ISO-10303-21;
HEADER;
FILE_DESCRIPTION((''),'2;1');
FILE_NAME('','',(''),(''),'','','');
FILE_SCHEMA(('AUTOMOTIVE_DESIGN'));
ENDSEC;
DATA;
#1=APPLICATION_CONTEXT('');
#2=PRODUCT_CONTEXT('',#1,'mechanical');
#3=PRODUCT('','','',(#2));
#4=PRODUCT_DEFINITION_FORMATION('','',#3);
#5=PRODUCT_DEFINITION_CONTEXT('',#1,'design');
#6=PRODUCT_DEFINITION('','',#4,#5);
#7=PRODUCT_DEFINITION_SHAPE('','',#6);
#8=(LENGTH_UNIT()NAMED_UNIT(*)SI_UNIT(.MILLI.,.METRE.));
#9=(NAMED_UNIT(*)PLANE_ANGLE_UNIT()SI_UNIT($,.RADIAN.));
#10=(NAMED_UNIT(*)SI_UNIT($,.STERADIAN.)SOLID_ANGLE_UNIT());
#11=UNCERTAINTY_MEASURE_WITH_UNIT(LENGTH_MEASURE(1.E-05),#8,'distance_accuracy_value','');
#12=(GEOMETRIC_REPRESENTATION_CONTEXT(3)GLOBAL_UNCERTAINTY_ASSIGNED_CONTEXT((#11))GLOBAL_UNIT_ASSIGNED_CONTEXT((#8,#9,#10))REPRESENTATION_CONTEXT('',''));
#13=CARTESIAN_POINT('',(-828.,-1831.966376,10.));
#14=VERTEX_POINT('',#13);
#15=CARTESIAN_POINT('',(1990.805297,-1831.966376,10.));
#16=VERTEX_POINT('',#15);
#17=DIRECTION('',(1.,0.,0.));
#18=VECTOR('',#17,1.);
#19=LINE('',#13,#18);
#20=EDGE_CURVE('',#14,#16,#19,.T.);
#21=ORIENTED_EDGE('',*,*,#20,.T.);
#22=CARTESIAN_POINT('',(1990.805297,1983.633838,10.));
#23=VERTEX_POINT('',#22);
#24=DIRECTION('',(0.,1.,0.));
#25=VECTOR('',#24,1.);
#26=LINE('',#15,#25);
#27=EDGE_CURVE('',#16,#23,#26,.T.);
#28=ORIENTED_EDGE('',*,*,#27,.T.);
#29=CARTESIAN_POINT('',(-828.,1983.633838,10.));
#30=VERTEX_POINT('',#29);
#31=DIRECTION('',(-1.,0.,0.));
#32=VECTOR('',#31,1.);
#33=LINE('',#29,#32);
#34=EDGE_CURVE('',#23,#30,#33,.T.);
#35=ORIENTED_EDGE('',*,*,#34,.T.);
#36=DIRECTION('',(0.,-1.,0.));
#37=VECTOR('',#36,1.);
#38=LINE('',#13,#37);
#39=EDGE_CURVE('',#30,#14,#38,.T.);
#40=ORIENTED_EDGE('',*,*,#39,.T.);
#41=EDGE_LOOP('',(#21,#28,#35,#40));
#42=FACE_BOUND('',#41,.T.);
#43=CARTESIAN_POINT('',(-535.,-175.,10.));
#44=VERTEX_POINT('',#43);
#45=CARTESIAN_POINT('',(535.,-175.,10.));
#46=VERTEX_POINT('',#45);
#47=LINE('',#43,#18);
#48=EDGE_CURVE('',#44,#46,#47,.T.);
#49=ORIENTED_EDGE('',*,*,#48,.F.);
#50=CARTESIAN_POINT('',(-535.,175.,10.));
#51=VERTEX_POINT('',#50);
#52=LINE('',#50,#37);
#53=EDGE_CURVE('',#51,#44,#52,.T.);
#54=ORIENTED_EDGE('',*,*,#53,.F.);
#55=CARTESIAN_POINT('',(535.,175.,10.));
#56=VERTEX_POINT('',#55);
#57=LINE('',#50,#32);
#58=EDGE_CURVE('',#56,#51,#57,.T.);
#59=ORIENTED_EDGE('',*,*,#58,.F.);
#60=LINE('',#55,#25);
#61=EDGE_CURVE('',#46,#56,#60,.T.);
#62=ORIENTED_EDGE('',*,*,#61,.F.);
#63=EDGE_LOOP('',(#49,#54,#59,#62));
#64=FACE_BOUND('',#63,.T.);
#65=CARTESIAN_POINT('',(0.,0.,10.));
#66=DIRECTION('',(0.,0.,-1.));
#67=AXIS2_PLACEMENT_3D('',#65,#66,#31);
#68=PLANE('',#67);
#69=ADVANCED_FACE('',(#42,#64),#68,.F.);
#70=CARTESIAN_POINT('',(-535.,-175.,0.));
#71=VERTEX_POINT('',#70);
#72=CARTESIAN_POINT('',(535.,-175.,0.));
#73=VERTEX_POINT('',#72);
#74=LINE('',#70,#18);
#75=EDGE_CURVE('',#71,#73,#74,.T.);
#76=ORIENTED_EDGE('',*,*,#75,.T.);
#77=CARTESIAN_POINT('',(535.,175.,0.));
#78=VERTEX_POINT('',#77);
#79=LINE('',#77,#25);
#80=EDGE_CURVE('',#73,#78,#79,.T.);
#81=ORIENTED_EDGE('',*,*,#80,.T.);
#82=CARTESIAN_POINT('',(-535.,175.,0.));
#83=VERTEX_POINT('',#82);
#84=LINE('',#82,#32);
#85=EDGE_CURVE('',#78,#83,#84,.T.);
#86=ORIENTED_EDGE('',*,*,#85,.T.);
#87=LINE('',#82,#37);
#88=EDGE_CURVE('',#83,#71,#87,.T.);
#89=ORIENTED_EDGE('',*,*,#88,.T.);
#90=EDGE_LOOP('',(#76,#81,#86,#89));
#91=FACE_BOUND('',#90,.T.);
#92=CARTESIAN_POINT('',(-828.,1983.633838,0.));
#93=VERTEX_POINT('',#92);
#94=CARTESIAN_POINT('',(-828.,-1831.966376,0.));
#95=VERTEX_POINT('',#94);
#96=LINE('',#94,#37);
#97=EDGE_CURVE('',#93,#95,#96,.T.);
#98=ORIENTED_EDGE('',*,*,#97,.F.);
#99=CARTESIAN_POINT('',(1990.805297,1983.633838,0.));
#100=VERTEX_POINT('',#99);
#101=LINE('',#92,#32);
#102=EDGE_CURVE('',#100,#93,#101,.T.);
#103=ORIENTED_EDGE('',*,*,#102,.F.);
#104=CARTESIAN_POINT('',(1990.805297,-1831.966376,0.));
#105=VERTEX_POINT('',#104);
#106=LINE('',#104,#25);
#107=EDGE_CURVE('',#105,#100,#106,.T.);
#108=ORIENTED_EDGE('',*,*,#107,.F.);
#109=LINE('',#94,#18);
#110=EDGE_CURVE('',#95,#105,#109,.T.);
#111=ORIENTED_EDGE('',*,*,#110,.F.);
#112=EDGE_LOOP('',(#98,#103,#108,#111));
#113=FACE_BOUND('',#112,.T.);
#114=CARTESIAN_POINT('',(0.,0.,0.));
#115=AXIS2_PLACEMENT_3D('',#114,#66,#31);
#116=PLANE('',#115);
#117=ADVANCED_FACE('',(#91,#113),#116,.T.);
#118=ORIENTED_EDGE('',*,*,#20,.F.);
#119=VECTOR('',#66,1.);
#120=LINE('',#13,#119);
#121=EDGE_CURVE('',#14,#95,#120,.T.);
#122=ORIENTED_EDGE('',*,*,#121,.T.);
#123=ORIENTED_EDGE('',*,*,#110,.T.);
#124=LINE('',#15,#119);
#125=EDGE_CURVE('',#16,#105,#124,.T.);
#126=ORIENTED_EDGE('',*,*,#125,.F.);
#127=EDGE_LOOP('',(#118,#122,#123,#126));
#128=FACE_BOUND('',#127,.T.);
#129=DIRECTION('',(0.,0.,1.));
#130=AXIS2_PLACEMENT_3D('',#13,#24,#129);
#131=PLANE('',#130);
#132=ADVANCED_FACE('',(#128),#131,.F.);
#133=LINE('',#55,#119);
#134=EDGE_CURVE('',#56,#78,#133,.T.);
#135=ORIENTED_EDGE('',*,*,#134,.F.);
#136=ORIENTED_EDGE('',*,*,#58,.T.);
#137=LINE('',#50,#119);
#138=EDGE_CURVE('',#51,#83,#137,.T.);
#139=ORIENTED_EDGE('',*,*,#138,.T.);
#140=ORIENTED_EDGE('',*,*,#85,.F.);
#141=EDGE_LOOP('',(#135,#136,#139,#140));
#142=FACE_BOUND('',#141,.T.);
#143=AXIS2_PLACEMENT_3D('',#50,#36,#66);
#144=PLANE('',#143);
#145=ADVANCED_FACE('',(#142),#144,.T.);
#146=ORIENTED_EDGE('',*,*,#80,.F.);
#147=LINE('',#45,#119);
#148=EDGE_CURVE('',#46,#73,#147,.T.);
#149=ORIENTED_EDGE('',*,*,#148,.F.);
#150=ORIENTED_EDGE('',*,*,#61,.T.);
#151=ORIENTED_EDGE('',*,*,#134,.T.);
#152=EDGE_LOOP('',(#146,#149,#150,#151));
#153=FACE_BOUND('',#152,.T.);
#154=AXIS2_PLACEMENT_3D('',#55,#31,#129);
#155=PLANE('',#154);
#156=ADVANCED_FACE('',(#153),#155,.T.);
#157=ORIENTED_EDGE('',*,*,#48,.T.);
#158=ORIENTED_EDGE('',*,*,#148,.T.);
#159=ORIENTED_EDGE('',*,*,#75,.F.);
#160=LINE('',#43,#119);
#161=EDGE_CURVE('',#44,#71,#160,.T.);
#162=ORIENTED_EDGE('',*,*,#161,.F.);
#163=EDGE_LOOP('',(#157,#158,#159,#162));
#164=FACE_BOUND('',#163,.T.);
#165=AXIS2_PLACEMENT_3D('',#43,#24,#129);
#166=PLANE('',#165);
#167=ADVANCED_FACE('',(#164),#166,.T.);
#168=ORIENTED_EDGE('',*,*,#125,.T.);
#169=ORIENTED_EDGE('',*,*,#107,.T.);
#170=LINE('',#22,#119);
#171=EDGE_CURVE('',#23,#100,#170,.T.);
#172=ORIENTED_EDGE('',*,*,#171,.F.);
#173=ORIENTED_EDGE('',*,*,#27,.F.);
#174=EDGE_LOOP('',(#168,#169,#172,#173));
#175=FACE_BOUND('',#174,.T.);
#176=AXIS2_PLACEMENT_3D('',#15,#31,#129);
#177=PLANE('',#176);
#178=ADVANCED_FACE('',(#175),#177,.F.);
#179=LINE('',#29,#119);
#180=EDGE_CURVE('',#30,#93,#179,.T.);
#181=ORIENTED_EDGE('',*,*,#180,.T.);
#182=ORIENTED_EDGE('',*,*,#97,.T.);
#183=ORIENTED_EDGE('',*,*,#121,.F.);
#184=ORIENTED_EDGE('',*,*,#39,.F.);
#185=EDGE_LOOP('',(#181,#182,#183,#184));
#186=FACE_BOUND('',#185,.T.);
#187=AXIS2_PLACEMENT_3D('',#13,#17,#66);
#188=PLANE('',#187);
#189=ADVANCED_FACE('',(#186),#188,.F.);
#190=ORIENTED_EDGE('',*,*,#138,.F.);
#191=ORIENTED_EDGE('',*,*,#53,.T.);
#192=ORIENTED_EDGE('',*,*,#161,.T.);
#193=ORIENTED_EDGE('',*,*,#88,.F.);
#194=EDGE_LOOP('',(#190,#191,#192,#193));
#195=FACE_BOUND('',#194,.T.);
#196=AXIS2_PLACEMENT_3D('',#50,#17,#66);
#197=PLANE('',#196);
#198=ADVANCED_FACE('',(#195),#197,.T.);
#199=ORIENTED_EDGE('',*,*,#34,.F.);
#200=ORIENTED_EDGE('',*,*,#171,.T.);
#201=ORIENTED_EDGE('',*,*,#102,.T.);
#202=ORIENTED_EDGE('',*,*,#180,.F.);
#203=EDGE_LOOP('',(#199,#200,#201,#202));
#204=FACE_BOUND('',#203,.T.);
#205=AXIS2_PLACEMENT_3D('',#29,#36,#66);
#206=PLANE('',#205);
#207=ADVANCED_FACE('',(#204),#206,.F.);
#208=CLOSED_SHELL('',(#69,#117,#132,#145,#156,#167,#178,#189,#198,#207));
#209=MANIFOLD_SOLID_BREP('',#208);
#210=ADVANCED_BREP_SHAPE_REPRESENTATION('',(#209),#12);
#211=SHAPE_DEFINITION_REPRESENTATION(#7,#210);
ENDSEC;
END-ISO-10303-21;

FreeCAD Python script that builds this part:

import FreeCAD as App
import Part
import Sketcher
from FreeCAD import Vector

doc = App.newDocument("Part")
body = doc.addObject("PartDesign::Body", "Body")

sketch1 = body.newObject("Sketcher::SketchObject", "Sketch")
sketch1.AttachmentSupport = (doc.getObject("XY_Plane"), [""])
sketch1.MapMode = "FlatFace"
sketch1.addGeometry([
    Part.LineSegment(Vector(-828, 1984, 0), Vector(-828, -1832, 0)),
    Part.LineSegment(Vector(-828, -1832, 0), Vector(1991, -1832, 0)),
    Part.LineSegment(Vector(1991, -1832, 0), Vector(1991, 1984, 0)),
    Part.LineSegment(Vector(1991, 1984, 0), Vector(-828, 1984, 0)),
    Part.LineSegment(Vector(535, -175, 0), Vector(-535, -175, 0)),
    Part.LineSegment(Vector(-535, -175, 0), Vector(-535, 175, 0)),
    Part.LineSegment(Vector(-535, 175, 0), Vector(535, 175, 0)),
    Part.LineSegment(Vector(535, 175, 0), Vector(535, -175, 0)),
], False)
sketch1.addConstraint([
    Sketcher.Constraint("Coincident", 0, 2, 1, 1),
    Sketcher.Constraint("Coincident", 1, 2, 2, 1),
    Sketcher.Constraint("Coincident", 2, 2, 3, 1),
    Sketcher.Constraint("Coincident", 3, 2, 0, 1),
    Sketcher.Constraint("Coincident", 4, 2, 5, 1),
    Sketcher.Constraint("Coincident", 5, 2, 6, 1),
    Sketcher.Constraint("Coincident", 6, 2, 7, 1),
    Sketcher.Constraint("Coincident", 7, 2, 4, 1),
    Sketcher.Constraint("Vertical", 0),
    Sketcher.Constraint("Horizontal", 1),
    Sketcher.Constraint("Vertical", 2),
    Sketcher.Constraint("Horizontal", 3),
    Sketcher.Constraint("Horizontal", 4),
    Sketcher.Constraint("Vertical", 5),
    Sketcher.Constraint("Horizontal", 6),
    Sketcher.Constraint("Vertical", 7),
    Sketcher.Constraint("Symmetric", 4, 2, 6, 2, -1, 1),
    Sketcher.Constraint("DistanceX", 4, 2, 4, 1, 1070.0),
    Sketcher.Constraint("DistanceY", 5, 1, 5, 2, 350.0),
    Sketcher.Constraint("DistanceX", 0, 2, -1, 1, 828.0),
    Sketcher.Constraint("DistanceX", 1, 1, 1, 2, 2818.805297),
    Sketcher.Constraint("DistanceY", 0, 2, 0, 1, 3815.600214),
    Sketcher.Constraint("DistanceY", 0, 2, -1, 1, 1831.966376),
])
pad1 = body.newObject("PartDesign::Pad", "Pad")
pad1.Profile = sketch1
pad1.Length = 10

doc.recompute()
